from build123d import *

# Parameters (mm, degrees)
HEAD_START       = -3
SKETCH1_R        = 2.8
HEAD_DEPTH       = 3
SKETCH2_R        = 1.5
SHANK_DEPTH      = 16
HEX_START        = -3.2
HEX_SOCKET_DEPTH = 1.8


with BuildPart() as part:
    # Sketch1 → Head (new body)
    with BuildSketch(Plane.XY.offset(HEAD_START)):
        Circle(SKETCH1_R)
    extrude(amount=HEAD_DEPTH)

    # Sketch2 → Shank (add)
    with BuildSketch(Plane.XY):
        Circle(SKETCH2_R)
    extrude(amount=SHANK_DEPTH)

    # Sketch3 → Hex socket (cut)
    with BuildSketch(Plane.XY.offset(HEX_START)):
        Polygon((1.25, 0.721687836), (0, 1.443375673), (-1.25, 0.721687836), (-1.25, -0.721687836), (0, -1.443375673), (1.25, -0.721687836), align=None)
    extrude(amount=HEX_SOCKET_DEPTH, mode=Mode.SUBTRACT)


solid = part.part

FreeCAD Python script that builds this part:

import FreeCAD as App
import Part
import Sketcher

V = App.Vector
Q = App.Units.Quantity


def add_polygon(sketch, points):
    """Adds a closed chain of lines whose ends are joined by coincident constraints."""
    first, n = sketch.GeometryCount, len(points)
    for a, b in zip(points, points[1:] + points[:1]):
        sketch.addGeometry(Part.LineSegment(App.Vector(*a, 0), App.Vector(*b, 0)), False)
    for i in range(n):
        sketch.addConstraint(Sketcher.Constraint("Coincident", first + i, 2, first + (i + 1) % n, 1))

doc = App.newDocument("Part")
body = doc.addObject("PartDesign::Body", "Body")

# Sketch on XY plane
sketch1 = body.newObject("Sketcher::SketchObject", "Sketch")
sketch1.AttachmentSupport = (doc.getObject("XY_Plane"), [""])
sketch1.MapMode = "FlatFace"
sketch1.AttachmentOffset = App.Placement(V(0, 0, -3), App.Rotation())
sketch1.addGeometry(Part.Circle(V(0, 0, 0), V(0, 0, 1), 2.8), False)
sketch1.addConstraint([
    Sketcher.Constraint("Coincident", 0, 3, -1, 1),
    Sketcher.Constraint("Diameter", 0, Q("5.6 mm")),
])
pad1 = body.newObject("PartDesign::Pad", "Pad")
pad1.Profile = sketch1
pad1.Length = 3

# Sketch on XY plane
sketch2 = body.newObject("Sketcher::SketchObject", "Sketch001")
sketch2.AttachmentSupport = (doc.getObject("XY_Plane"), [""])
sketch2.MapMode = "FlatFace"
sketch2.addGeometry(Part.Circle(V(0, 0, 0), V(0, 0, 1), 1.5), False)
sketch2.addConstraint([
    Sketcher.Constraint("Coincident", 0, 3, -1, 1),
    Sketcher.Constraint("Diameter", 0, Q("3 mm")),
])
pad2 = body.newObject("PartDesign::Pad", "Pad001")
pad2.Profile = sketch2
pad2.Length = 16

# Sketch on XY plane
sketch3 = body.newObject("Sketcher::SketchObject", "Sketch002")
sketch3.AttachmentSupport = (doc.getObject("XY_Plane"), [""])
sketch3.MapMode = "FlatFace"
sketch3.AttachmentOffset = App.Placement(V(0, 0, -3.2), App.Rotation())
add_polygon(sketch3, [(1.2, 0.7), (0, 1.4), (-1.2, 0.7), (-1.2, -0.7), (0, -1.4), (1.2, -0.7)])  # lines 0-5
sketch3.addConstraint([
    Sketcher.Constraint("Vertical", 2),
    Sketcher.Constraint("Vertical", 5),
    Sketcher.Constraint("Symmetric", 0, 2, 3, 2, -1, 1),
    Sketcher.Constraint("Symmetric", 1, 2, 4, 2, -1, 1),
    Sketcher.Constraint("PointOnObject", 0, 2, -2),
    Sketcher.Constraint("Parallel", 0, 3),
    Sketcher.Constraint("Horizontal", 2, 2, 4, 2),
    Sketcher.Constraint("Angle", 0, Q("150 deg")),
    Sketcher.Constraint("DistanceX", 2, 2, 4, 2, Q("2.5 mm")),
    Sketcher.Constraint("DistanceY", 2, 2, 2, 1, Q("1.443376 mm")),
])
pocket1 = body.newObject("PartDesign::Pocket", "Pocket")
pocket1.Profile = sketch3
pocket1.Length = 1.8
pocket1.Reversed = True

doc.recompute()
